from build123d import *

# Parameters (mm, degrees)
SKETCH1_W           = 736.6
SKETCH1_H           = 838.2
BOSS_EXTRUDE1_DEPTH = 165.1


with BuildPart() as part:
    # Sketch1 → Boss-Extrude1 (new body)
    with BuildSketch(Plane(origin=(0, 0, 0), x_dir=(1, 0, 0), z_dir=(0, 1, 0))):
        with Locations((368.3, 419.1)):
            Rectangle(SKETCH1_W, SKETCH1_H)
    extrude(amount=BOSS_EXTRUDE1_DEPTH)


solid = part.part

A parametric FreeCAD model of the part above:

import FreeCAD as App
import Part
import Sketcher
from FreeCAD import Vector
Q = App.Units.Quantity

doc = App.newDocument("Part")
body = doc.addObject("PartDesign::Body", "Body")

sketch1 = doc.addObject("Sketcher::SketchObject", "Sketch")
body.addObject(sketch1)
sketch1.AttachmentSupport = (doc.XZ_Plane, [""])
sketch1.MapMode = "FlatFace"
sketch1.addGeometry(Part.LineSegment(Vector(0, -838, 0), Vector(0, 0, 0)), False)
sketch1.addGeometry(Part.LineSegment(Vector(0, 0, 0), Vector(737, 0, 0)), False)
sketch1.addGeometry(Part.LineSegment(Vector(737, 0, 0), Vector(737, -838, 0)), False)
sketch1.addGeometry(Part.LineSegment(Vector(737, -838, 0), Vector(0, -838, 0)), False)
sketch1.addConstraint(Sketcher.Constraint("Coincident", 0, 2, 1, 1))
sketch1.addConstraint(Sketcher.Constraint("Coincident", 1, 2, 2, 1))
sketch1.addConstraint(Sketcher.Constraint("Coincident", 2, 2, 3, 1))
sketch1.addConstraint(Sketcher.Constraint("Coincident", 3, 2, 0, 1))
sketch1.addConstraint(Sketcher.Constraint("Vertical", 0))
sketch1.addConstraint(Sketcher.Constraint("Horizontal", 1))
sketch1.addConstraint(Sketcher.Constraint("Vertical", 2))
sketch1.addConstraint(Sketcher.Constraint("Horizontal", 3))
sketch1.addConstraint(Sketcher.Constraint("Coincident", 0, 2, -1, 1))
sketch1.addConstraint(Sketcher.Constraint("DistanceX", 1, 1, 1, 2, Q("29 in")))
sketch1.addConstraint(Sketcher.Constraint("DistanceY", 0, 1, 0, 2, Q("33 in")))
pad1 = doc.addObject("PartDesign::Pad", "Pad")
body.addObject(pad1)
pad1.Profile = sketch1
pad1.Length = Q("6.5 in")
pad1.Reversed = True

doc.recompute()
